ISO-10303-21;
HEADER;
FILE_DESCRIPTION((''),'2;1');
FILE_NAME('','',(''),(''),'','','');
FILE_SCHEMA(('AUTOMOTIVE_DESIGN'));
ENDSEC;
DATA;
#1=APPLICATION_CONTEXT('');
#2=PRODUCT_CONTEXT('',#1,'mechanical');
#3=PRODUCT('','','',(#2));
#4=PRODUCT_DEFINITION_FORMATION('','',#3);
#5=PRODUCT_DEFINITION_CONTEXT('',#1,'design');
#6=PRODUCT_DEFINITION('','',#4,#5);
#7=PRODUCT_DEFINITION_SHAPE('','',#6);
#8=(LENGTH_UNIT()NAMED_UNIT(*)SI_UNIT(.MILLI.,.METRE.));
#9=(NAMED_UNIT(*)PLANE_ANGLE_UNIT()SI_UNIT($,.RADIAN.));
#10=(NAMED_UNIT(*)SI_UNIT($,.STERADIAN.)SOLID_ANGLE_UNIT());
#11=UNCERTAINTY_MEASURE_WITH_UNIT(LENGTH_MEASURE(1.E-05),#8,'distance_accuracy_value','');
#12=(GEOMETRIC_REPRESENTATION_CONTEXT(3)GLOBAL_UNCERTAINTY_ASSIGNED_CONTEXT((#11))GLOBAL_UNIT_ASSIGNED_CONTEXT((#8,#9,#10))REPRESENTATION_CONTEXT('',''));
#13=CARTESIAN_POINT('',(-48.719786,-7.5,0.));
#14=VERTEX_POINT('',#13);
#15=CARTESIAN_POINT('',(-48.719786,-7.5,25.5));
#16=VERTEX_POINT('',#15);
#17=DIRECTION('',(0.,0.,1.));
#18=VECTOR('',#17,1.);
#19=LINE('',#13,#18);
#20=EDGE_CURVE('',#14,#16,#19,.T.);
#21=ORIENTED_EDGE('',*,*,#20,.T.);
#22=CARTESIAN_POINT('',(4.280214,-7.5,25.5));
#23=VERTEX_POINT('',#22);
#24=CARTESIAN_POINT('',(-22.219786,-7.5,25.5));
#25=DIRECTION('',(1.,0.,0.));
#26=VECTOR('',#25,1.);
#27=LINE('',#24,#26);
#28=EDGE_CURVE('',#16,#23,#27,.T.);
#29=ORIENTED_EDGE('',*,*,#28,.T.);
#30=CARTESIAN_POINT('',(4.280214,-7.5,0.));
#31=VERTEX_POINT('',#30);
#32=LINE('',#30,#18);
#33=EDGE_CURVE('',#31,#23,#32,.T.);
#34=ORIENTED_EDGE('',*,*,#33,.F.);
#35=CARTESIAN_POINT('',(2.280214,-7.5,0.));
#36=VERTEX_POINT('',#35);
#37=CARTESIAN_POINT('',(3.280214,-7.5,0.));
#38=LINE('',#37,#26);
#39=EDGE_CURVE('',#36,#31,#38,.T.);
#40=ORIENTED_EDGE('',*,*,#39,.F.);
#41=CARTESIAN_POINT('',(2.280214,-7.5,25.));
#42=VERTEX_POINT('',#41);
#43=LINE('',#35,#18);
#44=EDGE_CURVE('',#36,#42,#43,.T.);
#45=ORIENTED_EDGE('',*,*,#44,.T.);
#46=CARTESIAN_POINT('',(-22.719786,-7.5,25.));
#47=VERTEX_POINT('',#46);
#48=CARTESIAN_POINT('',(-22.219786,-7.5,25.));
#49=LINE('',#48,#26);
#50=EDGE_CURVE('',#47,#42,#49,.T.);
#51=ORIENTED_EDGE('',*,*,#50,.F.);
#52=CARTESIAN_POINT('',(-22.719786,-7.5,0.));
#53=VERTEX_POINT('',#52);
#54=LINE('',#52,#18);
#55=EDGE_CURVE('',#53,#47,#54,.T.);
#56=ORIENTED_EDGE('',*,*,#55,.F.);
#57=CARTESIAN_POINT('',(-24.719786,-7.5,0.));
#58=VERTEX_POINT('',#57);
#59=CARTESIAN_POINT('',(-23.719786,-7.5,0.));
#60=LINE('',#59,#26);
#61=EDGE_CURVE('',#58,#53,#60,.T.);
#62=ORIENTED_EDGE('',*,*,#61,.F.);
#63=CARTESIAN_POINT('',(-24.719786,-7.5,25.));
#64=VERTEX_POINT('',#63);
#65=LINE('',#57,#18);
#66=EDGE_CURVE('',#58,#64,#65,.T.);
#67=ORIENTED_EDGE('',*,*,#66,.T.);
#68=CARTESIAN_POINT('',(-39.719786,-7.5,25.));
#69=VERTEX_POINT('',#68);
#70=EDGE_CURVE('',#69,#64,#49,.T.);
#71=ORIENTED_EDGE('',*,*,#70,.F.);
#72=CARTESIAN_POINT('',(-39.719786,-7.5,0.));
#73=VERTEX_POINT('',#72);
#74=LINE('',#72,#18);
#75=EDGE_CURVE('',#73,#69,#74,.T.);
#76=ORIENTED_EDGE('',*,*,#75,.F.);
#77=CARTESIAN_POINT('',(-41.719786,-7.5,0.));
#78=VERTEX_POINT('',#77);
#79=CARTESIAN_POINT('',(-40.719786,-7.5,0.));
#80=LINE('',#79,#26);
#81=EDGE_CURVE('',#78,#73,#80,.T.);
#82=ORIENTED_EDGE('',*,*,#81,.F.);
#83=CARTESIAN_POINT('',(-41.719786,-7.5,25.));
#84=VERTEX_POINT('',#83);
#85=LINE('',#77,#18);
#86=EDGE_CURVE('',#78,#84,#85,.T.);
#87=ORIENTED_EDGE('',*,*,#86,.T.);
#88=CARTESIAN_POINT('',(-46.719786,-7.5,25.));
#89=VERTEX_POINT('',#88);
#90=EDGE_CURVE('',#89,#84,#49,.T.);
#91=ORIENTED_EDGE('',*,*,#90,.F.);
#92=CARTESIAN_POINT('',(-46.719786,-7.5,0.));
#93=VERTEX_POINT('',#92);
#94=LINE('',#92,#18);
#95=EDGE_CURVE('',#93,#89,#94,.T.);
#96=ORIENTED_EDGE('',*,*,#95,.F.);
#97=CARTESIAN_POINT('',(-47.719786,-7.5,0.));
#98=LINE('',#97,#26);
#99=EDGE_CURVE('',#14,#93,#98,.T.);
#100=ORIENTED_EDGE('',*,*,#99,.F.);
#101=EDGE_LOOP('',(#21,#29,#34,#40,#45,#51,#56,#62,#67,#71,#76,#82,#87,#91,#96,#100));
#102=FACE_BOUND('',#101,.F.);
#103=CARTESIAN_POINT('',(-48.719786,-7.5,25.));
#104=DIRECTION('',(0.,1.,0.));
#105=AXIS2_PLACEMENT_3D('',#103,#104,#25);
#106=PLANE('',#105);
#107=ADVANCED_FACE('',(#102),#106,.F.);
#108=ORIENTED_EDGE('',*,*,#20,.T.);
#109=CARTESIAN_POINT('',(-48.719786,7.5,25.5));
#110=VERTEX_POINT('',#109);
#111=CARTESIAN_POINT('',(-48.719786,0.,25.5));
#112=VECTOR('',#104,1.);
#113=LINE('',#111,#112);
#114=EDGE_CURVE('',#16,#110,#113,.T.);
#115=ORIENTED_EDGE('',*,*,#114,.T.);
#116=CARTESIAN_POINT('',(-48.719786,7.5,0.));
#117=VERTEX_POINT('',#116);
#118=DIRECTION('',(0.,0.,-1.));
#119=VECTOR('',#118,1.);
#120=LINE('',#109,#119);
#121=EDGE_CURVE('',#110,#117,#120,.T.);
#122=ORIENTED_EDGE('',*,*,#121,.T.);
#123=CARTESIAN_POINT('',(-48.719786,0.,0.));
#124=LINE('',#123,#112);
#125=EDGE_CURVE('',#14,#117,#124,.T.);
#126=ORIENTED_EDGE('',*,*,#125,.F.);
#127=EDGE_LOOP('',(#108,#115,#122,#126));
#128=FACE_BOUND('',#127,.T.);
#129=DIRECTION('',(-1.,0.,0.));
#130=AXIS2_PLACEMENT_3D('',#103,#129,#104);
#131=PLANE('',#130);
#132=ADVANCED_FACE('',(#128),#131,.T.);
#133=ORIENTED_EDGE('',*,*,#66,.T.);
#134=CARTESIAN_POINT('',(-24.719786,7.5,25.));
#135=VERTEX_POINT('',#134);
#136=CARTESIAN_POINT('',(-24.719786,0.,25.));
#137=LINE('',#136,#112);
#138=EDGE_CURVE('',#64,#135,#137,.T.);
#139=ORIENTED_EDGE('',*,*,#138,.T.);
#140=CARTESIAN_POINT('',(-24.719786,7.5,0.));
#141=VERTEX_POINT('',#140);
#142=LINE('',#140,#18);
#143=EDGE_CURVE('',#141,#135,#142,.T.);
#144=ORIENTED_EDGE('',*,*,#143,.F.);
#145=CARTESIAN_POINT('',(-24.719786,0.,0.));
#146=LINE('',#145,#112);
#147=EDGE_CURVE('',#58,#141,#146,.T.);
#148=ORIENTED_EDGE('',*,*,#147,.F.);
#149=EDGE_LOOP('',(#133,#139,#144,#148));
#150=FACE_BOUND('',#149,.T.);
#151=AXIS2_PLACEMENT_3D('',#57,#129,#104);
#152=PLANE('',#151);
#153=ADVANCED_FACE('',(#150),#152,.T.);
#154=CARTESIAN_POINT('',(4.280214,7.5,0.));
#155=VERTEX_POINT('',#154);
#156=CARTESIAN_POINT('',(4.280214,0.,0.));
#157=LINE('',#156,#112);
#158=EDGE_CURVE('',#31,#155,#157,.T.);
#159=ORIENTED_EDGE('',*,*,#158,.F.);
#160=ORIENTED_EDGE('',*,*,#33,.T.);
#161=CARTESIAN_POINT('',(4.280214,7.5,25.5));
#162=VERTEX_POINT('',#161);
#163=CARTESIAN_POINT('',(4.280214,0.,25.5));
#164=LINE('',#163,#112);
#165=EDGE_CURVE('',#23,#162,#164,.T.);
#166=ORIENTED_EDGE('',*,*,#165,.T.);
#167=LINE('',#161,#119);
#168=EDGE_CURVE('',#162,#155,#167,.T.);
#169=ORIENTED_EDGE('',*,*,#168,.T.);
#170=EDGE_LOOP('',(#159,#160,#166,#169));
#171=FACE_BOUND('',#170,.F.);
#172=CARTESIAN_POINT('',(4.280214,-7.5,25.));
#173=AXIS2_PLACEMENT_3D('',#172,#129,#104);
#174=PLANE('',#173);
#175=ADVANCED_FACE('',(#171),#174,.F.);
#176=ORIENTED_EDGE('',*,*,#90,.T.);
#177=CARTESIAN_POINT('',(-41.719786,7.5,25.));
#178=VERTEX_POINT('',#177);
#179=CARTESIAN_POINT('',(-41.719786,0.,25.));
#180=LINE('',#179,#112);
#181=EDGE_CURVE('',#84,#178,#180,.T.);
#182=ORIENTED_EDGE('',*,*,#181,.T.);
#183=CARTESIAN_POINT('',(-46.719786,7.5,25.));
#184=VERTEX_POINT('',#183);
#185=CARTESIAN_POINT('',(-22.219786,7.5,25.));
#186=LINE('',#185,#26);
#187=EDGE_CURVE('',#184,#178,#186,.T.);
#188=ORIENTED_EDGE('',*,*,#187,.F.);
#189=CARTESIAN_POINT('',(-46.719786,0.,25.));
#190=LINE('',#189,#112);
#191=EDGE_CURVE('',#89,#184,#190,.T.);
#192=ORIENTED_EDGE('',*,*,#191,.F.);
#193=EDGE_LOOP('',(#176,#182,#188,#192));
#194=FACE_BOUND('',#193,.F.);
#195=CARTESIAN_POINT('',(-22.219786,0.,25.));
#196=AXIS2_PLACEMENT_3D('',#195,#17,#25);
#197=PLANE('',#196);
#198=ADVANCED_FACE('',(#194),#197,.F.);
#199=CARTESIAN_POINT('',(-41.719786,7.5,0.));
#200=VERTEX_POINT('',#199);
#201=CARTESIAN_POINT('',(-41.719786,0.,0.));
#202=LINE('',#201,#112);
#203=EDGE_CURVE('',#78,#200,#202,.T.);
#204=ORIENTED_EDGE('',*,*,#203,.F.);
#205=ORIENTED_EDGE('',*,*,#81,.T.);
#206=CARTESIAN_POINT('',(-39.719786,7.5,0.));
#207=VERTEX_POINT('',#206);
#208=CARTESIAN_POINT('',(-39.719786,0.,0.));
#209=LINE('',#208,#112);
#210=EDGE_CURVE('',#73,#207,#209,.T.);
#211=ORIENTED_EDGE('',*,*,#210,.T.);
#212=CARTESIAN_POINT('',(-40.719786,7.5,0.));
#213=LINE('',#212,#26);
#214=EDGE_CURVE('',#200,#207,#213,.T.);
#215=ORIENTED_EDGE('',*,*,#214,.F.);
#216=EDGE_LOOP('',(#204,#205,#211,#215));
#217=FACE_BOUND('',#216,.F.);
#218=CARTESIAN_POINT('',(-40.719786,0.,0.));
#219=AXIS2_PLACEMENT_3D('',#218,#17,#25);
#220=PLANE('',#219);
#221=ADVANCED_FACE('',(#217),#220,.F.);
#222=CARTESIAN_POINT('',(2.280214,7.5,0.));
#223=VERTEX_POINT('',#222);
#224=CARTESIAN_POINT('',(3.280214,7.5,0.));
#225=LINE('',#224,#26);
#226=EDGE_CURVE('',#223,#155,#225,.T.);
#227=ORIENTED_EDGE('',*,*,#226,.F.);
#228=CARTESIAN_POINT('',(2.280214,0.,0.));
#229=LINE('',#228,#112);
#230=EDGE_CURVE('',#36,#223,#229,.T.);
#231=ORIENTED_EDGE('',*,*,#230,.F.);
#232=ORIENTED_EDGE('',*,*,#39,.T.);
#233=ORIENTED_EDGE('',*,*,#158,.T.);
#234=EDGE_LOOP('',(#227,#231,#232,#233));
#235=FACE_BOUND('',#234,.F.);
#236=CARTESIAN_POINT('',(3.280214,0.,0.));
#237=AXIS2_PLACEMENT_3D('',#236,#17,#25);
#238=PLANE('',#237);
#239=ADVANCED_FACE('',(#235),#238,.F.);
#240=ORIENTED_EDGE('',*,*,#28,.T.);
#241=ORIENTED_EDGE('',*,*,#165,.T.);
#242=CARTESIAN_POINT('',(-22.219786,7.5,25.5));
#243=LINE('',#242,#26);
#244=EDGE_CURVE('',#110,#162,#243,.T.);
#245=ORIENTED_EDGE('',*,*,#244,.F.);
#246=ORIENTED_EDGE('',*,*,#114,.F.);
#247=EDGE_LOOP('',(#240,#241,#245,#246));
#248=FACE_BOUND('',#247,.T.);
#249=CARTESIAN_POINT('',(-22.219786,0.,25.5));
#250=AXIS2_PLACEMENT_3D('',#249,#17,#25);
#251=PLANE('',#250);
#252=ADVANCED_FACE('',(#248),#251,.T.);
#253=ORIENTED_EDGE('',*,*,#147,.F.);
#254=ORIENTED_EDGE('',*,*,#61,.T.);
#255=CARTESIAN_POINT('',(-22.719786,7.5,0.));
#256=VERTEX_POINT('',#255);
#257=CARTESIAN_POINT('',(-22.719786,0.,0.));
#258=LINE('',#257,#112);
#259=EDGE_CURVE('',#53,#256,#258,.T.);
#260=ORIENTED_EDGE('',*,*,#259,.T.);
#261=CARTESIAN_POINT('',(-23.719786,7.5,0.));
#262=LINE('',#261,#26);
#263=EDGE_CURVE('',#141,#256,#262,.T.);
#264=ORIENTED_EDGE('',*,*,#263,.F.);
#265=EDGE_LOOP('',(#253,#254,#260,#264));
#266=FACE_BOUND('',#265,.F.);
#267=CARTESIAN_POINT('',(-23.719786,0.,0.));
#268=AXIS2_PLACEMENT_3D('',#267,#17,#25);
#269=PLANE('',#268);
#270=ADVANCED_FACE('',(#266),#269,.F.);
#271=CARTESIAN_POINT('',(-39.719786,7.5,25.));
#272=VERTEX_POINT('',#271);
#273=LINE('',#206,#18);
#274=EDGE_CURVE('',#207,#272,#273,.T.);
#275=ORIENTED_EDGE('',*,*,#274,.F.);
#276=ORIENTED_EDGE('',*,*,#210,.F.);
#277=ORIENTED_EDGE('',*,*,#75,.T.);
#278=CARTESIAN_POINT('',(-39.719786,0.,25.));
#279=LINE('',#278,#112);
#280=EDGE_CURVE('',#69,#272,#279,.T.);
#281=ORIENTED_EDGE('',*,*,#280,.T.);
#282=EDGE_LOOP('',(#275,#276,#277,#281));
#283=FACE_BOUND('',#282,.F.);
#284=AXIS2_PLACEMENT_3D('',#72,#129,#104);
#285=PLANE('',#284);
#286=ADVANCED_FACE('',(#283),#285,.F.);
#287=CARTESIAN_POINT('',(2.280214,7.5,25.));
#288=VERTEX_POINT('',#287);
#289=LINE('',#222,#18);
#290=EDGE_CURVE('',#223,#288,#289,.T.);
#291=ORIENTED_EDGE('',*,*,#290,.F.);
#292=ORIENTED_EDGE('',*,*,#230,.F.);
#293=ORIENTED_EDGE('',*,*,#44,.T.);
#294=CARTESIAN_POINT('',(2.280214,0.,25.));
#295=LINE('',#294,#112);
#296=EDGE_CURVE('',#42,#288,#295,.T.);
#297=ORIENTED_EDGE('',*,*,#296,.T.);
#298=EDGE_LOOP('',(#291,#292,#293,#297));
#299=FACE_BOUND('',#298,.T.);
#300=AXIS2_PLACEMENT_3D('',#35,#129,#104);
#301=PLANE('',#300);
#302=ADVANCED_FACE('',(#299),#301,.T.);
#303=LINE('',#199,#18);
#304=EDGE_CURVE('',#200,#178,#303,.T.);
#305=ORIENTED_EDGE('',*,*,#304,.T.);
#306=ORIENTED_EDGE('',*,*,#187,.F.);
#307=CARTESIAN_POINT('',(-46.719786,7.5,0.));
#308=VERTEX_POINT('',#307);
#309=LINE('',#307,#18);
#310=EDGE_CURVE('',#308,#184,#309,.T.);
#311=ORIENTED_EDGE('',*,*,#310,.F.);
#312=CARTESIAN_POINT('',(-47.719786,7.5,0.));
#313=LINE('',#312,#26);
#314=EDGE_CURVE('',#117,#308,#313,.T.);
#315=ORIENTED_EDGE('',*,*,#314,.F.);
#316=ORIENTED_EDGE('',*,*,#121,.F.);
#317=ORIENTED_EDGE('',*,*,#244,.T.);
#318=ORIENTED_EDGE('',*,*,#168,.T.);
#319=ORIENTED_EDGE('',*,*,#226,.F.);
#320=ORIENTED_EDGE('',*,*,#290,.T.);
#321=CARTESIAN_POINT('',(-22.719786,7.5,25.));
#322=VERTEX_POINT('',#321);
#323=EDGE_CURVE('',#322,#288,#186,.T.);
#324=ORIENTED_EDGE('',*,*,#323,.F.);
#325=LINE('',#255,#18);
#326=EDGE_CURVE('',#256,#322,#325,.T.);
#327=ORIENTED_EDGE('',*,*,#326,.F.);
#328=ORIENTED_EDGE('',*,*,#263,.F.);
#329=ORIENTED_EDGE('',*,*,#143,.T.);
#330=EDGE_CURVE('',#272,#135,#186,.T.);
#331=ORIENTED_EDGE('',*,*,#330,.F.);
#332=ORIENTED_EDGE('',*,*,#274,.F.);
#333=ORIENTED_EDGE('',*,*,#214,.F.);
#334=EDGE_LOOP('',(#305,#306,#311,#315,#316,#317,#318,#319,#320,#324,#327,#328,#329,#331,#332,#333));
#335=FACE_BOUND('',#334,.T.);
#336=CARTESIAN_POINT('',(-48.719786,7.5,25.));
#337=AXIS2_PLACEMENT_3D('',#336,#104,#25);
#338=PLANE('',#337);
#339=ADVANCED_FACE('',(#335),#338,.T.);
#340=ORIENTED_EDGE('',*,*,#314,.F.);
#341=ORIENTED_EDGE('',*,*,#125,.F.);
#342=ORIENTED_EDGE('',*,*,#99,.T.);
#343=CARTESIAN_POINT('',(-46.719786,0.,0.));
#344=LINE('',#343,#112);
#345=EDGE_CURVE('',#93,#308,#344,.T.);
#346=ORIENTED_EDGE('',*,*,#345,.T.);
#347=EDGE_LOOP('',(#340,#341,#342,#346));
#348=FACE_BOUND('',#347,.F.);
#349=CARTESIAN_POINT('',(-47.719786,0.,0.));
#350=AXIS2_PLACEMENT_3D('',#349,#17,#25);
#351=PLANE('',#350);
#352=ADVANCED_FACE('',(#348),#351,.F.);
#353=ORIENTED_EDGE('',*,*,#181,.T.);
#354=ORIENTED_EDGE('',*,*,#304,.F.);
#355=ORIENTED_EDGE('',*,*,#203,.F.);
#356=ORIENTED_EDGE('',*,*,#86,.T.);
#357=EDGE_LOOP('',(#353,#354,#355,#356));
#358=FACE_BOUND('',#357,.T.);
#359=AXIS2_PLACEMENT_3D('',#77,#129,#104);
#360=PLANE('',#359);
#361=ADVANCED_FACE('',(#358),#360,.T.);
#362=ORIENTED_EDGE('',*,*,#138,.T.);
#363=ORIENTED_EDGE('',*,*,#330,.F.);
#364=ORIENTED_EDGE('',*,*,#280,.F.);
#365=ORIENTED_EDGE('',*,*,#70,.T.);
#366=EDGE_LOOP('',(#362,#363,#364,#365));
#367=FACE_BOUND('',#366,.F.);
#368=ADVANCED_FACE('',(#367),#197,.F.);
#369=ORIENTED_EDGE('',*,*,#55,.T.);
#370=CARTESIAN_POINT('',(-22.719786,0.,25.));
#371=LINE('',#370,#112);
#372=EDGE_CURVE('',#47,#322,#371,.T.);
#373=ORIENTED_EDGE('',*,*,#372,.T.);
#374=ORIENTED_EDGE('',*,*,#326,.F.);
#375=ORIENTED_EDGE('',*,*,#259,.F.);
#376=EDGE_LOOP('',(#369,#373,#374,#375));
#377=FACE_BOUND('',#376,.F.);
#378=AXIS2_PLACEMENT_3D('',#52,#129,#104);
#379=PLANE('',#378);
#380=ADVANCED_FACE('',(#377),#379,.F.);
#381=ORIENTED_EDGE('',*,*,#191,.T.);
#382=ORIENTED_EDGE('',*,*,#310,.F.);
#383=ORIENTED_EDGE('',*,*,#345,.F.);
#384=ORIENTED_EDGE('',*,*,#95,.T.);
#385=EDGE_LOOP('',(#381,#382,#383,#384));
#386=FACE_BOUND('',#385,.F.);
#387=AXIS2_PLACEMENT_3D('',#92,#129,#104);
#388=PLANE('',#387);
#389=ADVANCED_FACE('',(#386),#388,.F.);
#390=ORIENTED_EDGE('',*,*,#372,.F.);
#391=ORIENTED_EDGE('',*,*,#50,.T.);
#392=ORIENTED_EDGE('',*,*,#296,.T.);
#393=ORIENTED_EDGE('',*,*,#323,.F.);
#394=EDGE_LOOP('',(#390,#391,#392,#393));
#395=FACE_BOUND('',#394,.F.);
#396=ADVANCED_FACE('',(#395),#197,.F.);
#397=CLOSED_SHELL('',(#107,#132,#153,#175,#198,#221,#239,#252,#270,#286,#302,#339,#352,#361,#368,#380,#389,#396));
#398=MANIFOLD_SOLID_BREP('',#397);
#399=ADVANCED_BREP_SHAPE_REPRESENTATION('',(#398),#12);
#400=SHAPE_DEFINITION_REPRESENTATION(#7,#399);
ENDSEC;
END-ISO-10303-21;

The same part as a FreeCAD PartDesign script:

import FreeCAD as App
import Part
import Sketcher


def add_polygon(sketch, points):
    """Adds a closed chain of lines whose ends are joined by coincident constraints."""
    first, n = sketch.GeometryCount, len(points)
    for a, b in zip(points, points[1:] + points[:1]):
        sketch.addGeometry(Part.LineSegment(App.Vector(*a, 0), App.Vector(*b, 0)), False)
    for i in range(n):
        sketch.addConstraint(Sketcher.Constraint("Coincident", first + i, 2, first + (i + 1) % n, 1))

doc = App.newDocument("Part")
body = doc.addObject("PartDesign::Body", "Body")
body.AllowCompound = True

# Sketch on XY plane
sketch1 = body.newObject("Sketcher::SketchObject", "Sketch")
sketch1.AttachmentSupport = (doc.getObject("XY_Plane"), [""])
sketch1.MapMode = "FlatFace"
add_polygon(sketch1, [(-48.7, 7.5), (-48.7, -7.5), (-46.7, -7.5), (-46.7, 7.5)])  # lines 0-3
add_polygon(sketch1, [(-41.7, 7.5), (-41.7, -7.5), (-39.7, -7.5), (-39.7, 7.5)])  # lines 4-7
add_polygon(sketch1, [(-24.7, 7.5), (-24.7, -7.5), (-22.7, -7.5), (-22.7, 7.5)])  # lines 8-11
add_polygon(sketch1, [(2.3, 7.5), (2.3, -7.5), (4.3, -7.5), (4.3, 7.5)])  # lines 12-15
sketch1.addConstraint([
    Sketcher.Constraint("Vertical", 0),
    Sketcher.Constraint("Horizontal", 1),
    Sketcher.Constraint("Vertical", 2),
    Sketcher.Constraint("Horizontal", 3),
    Sketcher.Constraint("Vertical", 4),
    Sketcher.Constraint("Horizontal", 5),
    Sketcher.Constraint("Vertical", 6),
    Sketcher.Constraint("Horizontal", 7),
    Sketcher.Constraint("Vertical", 8),
    Sketcher.Constraint("Horizontal", 9),
    Sketcher.Constraint("Vertical", 10),
    Sketcher.Constraint("Horizontal", 11),
    Sketcher.Constraint("Vertical", 12),
    Sketcher.Constraint("Horizontal", 13),
    Sketcher.Constraint("Vertical", 14),
    Sketcher.Constraint("Horizontal", 15),
    Sketcher.Constraint("Horizontal", 1, 2, 4, 2),
    Sketcher.Constraint("Horizontal", 3, 2, 6, 2),
    Sketcher.Constraint("Horizontal", 5, 2, 8, 2),
    Sketcher.Constraint("Horizontal", 7, 2, 10, 2),
    Sketcher.Constraint("Horizontal", 9, 2, 12, 2),
    Sketcher.Constraint("Horizontal", 11, 2, 14, 2),
    Sketcher.Constraint("Equal", 3, 5),
    Sketcher.Constraint("Equal", 7, 9),
    Sketcher.Constraint("Equal", 11, 13),
    Sketcher.Constraint("DistanceX", 1, 1, 1, 2, 2.0),
    Sketcher.Constraint("DistanceY", 0, 2, 0, 1, 15.0),
    Sketcher.Constraint("DistanceX", 1, 2, 4, 2, 5.0),
    Sketcher.Constraint("DistanceX", 5, 2, 8, 2, 15.0),
    Sketcher.Constraint("DistanceX", 9, 2, 12, 2, 25.0),
    Sketcher.Constraint("DistanceY", 0, 2, -1, 1, 7.5),
    Sketcher.Constraint("DistanceX", 0, 2, -1, 1, 48.719786),
])
pad1 = body.newObject("PartDesign::Pad", "Pad")
pad1.Profile = sketch1
pad1.Length = 25

# Sketch on XY plane
sketch2 = body.newObject("Sketcher::SketchObject", "Sketch001")
sketch2.AttachmentSupport = (doc.getObject("XY_Plane"), [""])
sketch2.MapMode = "FlatFace"
sketch2.AttachmentOffset = App.Placement(App.Vector(0, 0, 25), App.Rotation())
add_polygon(sketch2, [(-49, 8), (-49, -8), (4, -8), (4, 8)])  # lines 0-3
sketch2.addConstraint([
    Sketcher.Constraint("Vertical", 0),
    Sketcher.Constraint("Horizontal", 1),
    Sketcher.Constraint("Vertical", 2),
    Sketcher.Constraint("Horizontal", 3),
    Sketcher.Constraint("DistanceX", 1, 1, 1, 2, 53.0),
    Sketcher.Constraint("DistanceY", 0, 2, 0, 1, 15.0),
    Sketcher.Constraint("DistanceY", 0, 2, -1, 1, 7.5),
    Sketcher.Constraint("DistanceX", 0, 2, -1, 1, 48.719786),
])
pad2 = body.newObject("PartDesign::Pad", "Pad001")
pad2.Profile = sketch2
pad2.Length = 0.5

doc.recompute()
